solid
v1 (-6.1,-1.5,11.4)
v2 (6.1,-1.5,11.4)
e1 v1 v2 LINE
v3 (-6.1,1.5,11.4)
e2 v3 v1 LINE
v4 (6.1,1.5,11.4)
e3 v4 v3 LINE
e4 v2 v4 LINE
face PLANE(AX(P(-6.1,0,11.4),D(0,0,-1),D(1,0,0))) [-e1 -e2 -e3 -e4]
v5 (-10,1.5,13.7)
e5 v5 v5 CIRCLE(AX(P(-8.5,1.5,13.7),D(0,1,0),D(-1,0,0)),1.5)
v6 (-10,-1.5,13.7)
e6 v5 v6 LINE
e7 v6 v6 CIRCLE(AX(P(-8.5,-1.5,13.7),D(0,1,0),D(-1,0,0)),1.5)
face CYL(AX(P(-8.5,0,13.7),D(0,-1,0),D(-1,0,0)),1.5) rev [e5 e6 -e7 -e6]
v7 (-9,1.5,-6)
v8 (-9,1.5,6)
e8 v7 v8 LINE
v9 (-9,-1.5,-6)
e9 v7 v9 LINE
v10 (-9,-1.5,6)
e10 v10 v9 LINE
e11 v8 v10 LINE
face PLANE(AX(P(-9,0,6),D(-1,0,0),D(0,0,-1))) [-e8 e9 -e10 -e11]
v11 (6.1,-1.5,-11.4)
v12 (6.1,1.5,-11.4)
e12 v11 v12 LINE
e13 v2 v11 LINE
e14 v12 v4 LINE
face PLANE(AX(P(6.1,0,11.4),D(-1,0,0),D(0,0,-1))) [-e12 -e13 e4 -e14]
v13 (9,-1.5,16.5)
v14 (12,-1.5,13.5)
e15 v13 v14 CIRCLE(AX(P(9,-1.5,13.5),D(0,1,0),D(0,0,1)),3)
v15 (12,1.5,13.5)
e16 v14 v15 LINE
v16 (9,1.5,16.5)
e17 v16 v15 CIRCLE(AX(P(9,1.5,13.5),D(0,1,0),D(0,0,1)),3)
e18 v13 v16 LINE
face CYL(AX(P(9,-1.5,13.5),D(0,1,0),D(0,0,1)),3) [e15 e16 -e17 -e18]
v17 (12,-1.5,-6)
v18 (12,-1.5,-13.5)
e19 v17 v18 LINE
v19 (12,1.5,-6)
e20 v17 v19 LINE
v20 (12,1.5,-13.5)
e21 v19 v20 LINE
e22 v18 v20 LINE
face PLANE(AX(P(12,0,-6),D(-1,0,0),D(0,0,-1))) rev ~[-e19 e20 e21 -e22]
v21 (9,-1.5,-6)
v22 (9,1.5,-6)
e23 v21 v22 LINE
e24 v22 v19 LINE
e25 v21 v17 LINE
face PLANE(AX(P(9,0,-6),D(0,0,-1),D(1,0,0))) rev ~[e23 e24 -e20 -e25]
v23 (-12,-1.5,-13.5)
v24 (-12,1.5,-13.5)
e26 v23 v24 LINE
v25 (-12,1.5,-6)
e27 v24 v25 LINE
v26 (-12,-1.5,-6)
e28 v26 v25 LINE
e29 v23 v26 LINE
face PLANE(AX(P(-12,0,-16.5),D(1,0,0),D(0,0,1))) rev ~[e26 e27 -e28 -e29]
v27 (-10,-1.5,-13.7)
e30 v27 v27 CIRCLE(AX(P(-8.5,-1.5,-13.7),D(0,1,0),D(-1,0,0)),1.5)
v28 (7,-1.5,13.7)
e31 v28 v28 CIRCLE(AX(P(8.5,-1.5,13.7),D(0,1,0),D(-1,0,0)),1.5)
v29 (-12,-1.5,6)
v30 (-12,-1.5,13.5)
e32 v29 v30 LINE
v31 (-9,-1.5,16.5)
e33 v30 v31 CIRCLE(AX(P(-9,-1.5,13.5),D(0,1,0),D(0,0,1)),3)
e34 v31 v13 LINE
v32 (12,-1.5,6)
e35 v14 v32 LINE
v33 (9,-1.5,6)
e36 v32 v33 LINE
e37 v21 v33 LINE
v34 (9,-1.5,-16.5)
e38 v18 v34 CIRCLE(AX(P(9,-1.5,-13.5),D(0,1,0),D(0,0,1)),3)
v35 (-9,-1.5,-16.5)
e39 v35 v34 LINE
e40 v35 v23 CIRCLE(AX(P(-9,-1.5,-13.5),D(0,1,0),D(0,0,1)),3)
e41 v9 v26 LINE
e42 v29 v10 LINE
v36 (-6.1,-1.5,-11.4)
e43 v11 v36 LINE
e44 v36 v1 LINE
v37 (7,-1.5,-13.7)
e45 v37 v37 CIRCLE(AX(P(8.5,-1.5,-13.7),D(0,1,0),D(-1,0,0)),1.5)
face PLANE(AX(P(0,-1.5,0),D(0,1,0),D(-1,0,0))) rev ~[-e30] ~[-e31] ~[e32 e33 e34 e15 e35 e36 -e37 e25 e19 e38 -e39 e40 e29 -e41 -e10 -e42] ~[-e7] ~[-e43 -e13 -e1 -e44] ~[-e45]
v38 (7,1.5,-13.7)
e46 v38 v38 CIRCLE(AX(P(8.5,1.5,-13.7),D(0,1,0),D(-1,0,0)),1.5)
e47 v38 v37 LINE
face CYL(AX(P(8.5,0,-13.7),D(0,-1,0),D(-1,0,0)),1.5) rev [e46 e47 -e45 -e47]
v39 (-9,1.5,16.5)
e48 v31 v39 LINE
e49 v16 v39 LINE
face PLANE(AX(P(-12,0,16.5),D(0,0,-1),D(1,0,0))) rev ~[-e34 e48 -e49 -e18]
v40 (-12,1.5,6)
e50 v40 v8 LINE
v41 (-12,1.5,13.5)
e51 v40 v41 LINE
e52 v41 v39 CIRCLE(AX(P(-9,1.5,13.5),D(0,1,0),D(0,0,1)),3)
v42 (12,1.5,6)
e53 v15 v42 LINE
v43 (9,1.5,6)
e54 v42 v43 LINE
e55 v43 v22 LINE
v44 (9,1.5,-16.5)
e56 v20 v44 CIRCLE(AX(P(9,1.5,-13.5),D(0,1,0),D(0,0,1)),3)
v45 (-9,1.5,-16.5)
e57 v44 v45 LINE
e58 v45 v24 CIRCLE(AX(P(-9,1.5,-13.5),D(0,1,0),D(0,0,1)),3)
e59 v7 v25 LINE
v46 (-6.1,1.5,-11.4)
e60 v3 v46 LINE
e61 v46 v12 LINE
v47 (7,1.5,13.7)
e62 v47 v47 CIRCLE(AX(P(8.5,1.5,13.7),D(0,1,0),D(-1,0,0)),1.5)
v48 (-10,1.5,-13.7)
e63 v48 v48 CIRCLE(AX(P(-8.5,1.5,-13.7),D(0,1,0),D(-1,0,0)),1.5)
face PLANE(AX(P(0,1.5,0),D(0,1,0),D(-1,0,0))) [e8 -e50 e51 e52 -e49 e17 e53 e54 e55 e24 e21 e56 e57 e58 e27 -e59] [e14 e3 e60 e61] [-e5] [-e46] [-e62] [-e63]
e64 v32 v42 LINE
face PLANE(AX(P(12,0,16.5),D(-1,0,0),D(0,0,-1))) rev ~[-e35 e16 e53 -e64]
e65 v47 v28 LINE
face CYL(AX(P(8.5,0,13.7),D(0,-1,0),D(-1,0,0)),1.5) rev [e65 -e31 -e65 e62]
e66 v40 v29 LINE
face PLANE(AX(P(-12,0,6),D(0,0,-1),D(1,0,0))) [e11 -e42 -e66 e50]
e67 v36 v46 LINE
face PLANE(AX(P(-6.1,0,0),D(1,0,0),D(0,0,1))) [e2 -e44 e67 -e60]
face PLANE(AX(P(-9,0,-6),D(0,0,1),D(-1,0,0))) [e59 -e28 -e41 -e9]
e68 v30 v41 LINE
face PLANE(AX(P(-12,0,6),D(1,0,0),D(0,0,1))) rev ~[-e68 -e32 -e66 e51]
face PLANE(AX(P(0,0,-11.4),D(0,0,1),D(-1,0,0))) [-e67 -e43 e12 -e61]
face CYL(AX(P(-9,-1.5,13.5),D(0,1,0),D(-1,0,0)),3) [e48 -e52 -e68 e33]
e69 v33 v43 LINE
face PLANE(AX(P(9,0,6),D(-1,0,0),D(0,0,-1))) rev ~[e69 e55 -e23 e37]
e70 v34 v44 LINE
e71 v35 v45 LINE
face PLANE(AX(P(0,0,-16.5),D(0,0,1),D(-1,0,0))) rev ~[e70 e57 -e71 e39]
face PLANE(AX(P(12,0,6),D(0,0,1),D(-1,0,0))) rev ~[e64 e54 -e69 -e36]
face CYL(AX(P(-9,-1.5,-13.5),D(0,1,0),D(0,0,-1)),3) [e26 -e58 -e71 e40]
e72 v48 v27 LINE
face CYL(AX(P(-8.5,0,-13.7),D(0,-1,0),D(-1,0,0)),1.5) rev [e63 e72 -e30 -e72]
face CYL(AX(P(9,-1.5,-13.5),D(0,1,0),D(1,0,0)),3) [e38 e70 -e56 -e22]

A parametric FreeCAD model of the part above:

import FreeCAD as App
import Part
import Sketcher


def edges_at(feature, points):
    """Names of the edges that pass closest to the given points."""
    edges = feature.Shape.Edges
    near = lambda p: min(range(len(edges)), key=lambda i: edges[i].distToShape(Part.Vertex(*p))[0])
    return sorted({f"Edge{near(p) + 1}" for p in points})


def add_polygon(sketch, points):
    """Adds a closed chain of lines whose ends are joined by coincident constraints."""
    first, n = sketch.GeometryCount, len(points)
    for a, b in zip(points, points[1:] + points[:1]):
        sketch.addGeometry(Part.LineSegment(App.Vector(*a, 0), App.Vector(*b, 0)), False)
    for i in range(n):
        sketch.addConstraint(Sketcher.Constraint("Coincident", first + i, 2, first + (i + 1) % n, 1))

doc = App.newDocument("Part")
body = doc.addObject("PartDesign::Body", "Body")

# Sketch on XZ plane
sketch1 = body.newObject("Sketcher::SketchObject", "Sketch")
sketch1.AttachmentSupport = (doc.getObject("XZ_Plane"), [""])
sketch1.MapMode = "FlatFace"
add_polygon(sketch1, [(-12, 6), (-12, 16.5), (12, 16.5), (12, 6), (9, 6), (9, -6), (12, -6), (12, -16.5), (-12, -16.5), (-12, -6), (-9, -6), (-9, 6)])  # lines 0-11
add_polygon(sketch1, [(-6.1, 11.4), (-6.1, -11.4), (6.1, -11.4), (6.1, 11.4)])  # lines 12-15
sketch1.addGeometry(Part.Circle(App.Vector(-8.5, 13.7, 0), App.Vector(0, 0, 1), 1.5), False)  # 16
sketch1.addGeometry(Part.Circle(App.Vector(-8.5, -13.7, 0), App.Vector(0, 0, 1), 1.5), False)  # 17
sketch1.addGeometry(Part.Circle(App.Vector(8.5, 13.7, 0), App.Vector(0, 0, 1), 1.5), False)  # 18
sketch1.addGeometry(Part.Circle(App.Vector(8.5, -13.7, 0), App.Vector(0, 0, 1), 1.5), False)  # 19
sketch1.addConstraint([
    Sketcher.Constraint("Vertical", 0),
    Sketcher.Constraint("Horizontal", 1),
    Sketcher.Constraint("Vertical", 2),
    Sketcher.Constraint("Horizontal", 3),
    Sketcher.Constraint("Vertical", 4),
    Sketcher.Constraint("Horizontal", 5),
    Sketcher.Constraint("Vertical", 6),
    Sketcher.Constraint("Horizontal", 7),
    Sketcher.Constraint("Vertical", 8),
    Sketcher.Constraint("Horizontal", 9),
    Sketcher.Constraint("Vertical", 10),
    Sketcher.Constraint("Horizontal", 11),
    Sketcher.Constraint("Vertical", 12),
    Sketcher.Constraint("Horizontal", 13),
    Sketcher.Constraint("Vertical", 14),
    Sketcher.Constraint("Horizontal", 15),
    Sketcher.Constraint("Equal", 16, 17),
    Sketcher.Constraint("Equal", 17, 18),
    Sketcher.Constraint("Equal", 18, 19),
    Sketcher.Constraint("Symmetric", 17, 3, 18, 3, -1, 1),
    Sketcher.Constraint("Symmetric", 16, 3, 19, 3, -1, 1),
    Sketcher.Constraint("Symmetric", 0, 2, 6, 2, -1, 1),
    Sketcher.Constraint("Symmetric", 2, 2, 8, 2, -1, 1),
    Sketcher.Constraint("Symmetric", 4, 2, 10, 2, -1, 1),
    Sketcher.Constraint("Symmetric", 12, 2, 14, 2, -1, 1),
    Sketcher.Constraint("Symmetric", 16, 3, 18, 3, -2),
    Sketcher.Constraint("Symmetric", 5, 2, 8, 2, -2),
    Sketcher.Constraint("Diameter", 16, 3.0),
    Sketcher.Constraint("DistanceX", 1, 1, 1, 2, 24.0),
    Sketcher.Constraint("DistanceX", 3, 2, 3, 1, 3.0),
    Sketcher.Constraint("DistanceY", 4, 2, 4, 1, 12.0),
    Sketcher.Constraint("DistanceX", 13, 1, 13, 2, 12.2),
    Sketcher.Constraint("DistanceY", 12, 2, 12, 1, 22.8),
    Sketcher.Constraint("DistanceY", -1, 1, 0, 2, 16.5),
    Sketcher.Constraint("DistanceX", 0, 2, 16, 3, 3.5),
    Sketcher.Constraint("DistanceY", 16, 3, 0, 2, 2.8),
])
pad1 = body.newObject("PartDesign::Pad", "Pad")
pad1.Profile = sketch1
pad1.Length = 3
pad1.Midplane = True
doc.recompute()

fillet = body.newObject("PartDesign::Fillet", "Fillet")
fillet.Base = (pad1, edges_at(pad1, [
    (12, 0, 16.5),
    (-12, 0, 16.5),
    (-12, 0, -16.5),
    (12, 0, -16.5),
]))
fillet.Radius = 3

doc.recompute()
